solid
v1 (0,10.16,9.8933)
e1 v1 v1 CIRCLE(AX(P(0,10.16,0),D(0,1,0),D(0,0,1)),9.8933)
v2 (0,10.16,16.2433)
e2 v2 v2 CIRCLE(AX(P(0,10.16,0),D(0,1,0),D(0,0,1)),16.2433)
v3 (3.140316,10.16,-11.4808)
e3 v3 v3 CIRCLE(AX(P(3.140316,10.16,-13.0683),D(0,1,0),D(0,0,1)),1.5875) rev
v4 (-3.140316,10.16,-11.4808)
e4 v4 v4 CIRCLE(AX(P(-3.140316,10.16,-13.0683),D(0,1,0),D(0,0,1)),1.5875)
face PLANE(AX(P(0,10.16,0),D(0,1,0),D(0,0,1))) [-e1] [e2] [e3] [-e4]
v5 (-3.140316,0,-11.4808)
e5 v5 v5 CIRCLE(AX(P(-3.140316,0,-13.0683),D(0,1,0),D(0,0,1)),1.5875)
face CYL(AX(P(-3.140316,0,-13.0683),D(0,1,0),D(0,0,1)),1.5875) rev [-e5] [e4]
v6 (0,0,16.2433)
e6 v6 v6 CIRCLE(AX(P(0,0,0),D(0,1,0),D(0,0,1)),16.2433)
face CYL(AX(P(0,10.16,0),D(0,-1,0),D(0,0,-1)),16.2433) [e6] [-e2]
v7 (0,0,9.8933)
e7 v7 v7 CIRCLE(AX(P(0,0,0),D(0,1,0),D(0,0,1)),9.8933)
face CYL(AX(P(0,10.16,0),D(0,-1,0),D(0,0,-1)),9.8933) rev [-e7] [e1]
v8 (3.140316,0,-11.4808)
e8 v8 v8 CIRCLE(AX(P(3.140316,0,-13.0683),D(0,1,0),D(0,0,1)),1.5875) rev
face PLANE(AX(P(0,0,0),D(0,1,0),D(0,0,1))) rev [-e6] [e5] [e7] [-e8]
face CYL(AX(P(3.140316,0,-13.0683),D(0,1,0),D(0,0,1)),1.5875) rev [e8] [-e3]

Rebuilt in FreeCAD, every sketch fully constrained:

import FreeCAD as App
import Part
import Sketcher
Q = App.Units.Quantity

doc = App.newDocument("Part")
body = doc.addObject("PartDesign::Body", "Body")

sketch1 = doc.addObject("Sketcher::SketchObject", "Sketch")
body.addObject(sketch1)
sketch1.AttachmentSupport = (doc.XZ_Plane, [""])
sketch1.MapMode = "FlatFace"
sketch1.addGeometry([
    Part.Circle(App.Vector(0, 0, 0), App.Vector(0, 0, 1), 16.2433),
    Part.Circle(App.Vector(0, 0, 0), App.Vector(0, 0, 1), 9.8933),
], False)
sketch1.addConstraint([
    Sketcher.Constraint("Coincident", 0, 3, -1, 1),
    Sketcher.Constraint("Coincident", 1, 3, -1, 1),
    Sketcher.Constraint("Diameter", 0, Q("1.279 in")),
    Sketcher.Constraint("Diameter", 1, Q("0.779 in")),
])
pad1 = doc.addObject("PartDesign::Pad", "Pad")
body.addObject(pad1)
pad1.Profile = sketch1
pad1.Length = Q("0.4 in")
pad1.Reversed = True

sketch2 = doc.addObject("Sketcher::SketchObject", "Sketch001")
body.addObject(sketch2)
sketch2.AttachmentSupport = (doc.XZ_Plane, [""])
sketch2.MapMode = "FlatFace"
sketch2.AttachmentOffset = App.Placement(App.Vector(0, 0, -0.4 * 25.4), App.Rotation())
sketch2.addGeometry([
    Part.Circle(App.Vector(-3.140316, -13.0683, 0), App.Vector(0, 0, 1), 1.5875),
    Part.Circle(App.Vector(3.140316, -13.0683, 0), App.Vector(0, 0, 1), 1.5875),
], False)
sketch2.addConstraint([
    Sketcher.Constraint("Equal", 0, 1),
    Sketcher.Constraint("Symmetric", 0, 3, 1, 3, -2),
    Sketcher.Constraint("Diameter", 0, Q("0.125 in")),
    Sketcher.Constraint("DistanceY", 0, 3, -1, 1, Q("0.5145 in")),
    Sketcher.Constraint("DistanceX", 0, 3, 1, 3, Q("6.280631 mm")),
])
pocket1 = doc.addObject("PartDesign::Pocket", "Pocket")
body.addObject(pocket1)
pocket1.Profile = sketch2
pocket1.Type = "ThroughAll"
pocket1.Reversed = True

doc.recompute()
